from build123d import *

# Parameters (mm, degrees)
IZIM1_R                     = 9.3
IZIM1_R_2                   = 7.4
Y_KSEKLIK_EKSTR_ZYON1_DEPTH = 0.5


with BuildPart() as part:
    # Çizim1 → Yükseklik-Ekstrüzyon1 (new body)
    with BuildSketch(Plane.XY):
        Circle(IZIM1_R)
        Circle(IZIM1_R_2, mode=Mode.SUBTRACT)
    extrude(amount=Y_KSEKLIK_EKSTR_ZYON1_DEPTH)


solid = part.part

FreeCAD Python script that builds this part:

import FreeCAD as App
import Part
import Sketcher

V = App.Vector

doc = App.newDocument("Part")
body = doc.addObject("PartDesign::Body", "Body")

sketch1 = body.newObject("Sketcher::SketchObject", "Sketch")
sketch1.AttachmentSupport = (doc.getObject("XY_Plane"), [""])
sketch1.MapMode = "FlatFace"
sketch1.addGeometry([
    Part.Circle(V(0, 0, 0), V(0, 0, 1), 9),
    Part.Circle(V(0, 0, 0), V(0, 0, 1), 7),
], False)
sketch1.addConstraint([
    Sketcher.Constraint("Coincident", 0, 3, -1, 1),
    Sketcher.Constraint("Coincident", 1, 3, -1, 1),
    Sketcher.Constraint("Diameter", 0, 18.6),
    Sketcher.Constraint("Diameter", 1, 14.8),
])
pad1 = body.newObject("PartDesign::Pad", "Pad")
pad1.Profile = sketch1
pad1.Length = 0.5

doc.recompute()
